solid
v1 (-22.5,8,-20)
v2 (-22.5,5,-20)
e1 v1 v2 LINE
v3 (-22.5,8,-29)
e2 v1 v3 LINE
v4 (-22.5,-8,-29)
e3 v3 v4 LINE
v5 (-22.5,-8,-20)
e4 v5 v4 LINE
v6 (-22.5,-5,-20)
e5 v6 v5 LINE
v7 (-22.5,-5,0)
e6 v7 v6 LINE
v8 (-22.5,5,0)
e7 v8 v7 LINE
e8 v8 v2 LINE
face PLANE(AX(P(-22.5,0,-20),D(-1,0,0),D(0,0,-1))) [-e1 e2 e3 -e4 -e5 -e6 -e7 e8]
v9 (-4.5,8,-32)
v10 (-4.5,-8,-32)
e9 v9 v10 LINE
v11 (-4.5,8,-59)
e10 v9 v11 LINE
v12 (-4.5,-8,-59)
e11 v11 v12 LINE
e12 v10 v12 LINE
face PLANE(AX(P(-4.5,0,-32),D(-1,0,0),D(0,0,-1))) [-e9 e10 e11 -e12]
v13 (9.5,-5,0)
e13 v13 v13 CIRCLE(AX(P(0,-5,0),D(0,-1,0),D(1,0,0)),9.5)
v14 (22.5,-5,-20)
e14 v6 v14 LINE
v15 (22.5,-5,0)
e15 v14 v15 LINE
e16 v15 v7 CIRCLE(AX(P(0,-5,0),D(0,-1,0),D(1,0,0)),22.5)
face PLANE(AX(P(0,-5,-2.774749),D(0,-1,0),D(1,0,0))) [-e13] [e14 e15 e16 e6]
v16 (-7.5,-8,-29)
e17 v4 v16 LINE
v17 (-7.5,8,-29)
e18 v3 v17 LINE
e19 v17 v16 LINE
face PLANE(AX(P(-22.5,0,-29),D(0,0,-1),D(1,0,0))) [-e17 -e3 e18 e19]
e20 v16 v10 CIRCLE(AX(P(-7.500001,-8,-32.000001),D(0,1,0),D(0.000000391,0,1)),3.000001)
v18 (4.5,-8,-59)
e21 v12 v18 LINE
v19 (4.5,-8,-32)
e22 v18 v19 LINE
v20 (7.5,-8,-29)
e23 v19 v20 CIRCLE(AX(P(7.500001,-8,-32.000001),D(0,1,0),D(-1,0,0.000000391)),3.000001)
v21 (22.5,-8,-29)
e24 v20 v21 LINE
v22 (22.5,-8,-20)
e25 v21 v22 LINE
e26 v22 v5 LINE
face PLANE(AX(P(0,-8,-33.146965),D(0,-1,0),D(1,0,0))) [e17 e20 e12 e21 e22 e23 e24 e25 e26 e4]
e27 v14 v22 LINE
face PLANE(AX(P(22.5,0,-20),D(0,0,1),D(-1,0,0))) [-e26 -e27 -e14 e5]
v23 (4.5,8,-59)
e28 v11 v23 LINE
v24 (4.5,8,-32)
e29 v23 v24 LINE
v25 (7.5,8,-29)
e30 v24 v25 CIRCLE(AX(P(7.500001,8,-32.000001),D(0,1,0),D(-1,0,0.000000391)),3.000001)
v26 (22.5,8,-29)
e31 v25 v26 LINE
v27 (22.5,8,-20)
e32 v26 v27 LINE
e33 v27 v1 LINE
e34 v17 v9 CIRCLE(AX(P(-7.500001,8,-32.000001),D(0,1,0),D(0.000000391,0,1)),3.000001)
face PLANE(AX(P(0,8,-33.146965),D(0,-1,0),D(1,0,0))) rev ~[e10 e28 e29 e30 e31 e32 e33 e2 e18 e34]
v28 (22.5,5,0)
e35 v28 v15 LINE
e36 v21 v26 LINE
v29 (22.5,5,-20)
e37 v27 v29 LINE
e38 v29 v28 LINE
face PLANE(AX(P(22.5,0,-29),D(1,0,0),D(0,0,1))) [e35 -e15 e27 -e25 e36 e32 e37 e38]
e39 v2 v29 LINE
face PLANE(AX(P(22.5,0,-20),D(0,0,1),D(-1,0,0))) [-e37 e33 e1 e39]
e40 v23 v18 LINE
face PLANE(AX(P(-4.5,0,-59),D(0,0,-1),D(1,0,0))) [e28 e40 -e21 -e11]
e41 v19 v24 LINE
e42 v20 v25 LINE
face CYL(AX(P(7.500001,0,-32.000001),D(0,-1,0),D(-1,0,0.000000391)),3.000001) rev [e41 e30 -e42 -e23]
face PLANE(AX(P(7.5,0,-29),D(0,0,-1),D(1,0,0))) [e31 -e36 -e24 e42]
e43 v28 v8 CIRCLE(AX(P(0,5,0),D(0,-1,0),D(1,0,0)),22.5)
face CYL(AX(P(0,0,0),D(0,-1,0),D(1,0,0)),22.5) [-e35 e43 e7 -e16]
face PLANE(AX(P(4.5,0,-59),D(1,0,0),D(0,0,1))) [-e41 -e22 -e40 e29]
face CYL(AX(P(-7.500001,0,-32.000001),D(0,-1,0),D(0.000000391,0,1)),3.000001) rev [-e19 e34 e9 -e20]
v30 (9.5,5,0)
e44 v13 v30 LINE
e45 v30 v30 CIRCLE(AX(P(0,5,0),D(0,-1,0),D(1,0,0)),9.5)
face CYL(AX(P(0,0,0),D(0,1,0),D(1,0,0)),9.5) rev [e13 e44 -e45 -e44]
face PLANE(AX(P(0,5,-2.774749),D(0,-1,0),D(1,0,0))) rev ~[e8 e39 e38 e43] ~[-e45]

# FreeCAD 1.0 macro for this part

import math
import FreeCAD as App
import Part
import Sketcher
from FreeCAD import Vector

doc = App.newDocument("Part")
body = doc.addObject("PartDesign::Body", "Body")

# Sketch on XZ plane
sketch1 = body.newObject("Sketcher::SketchObject", "Sketch")
sketch1.AttachmentSupport = (doc.getObject("XZ_Plane"), [""])
sketch1.MapMode = "FlatFace"
sketch1.addGeometry([
    Part.LineSegment(Vector(22.5, -29, 0), Vector(22.5, -20, 0)),  # 0
    Part.LineSegment(Vector(22.5, -20, 0), Vector(-22.5, -20, 0)),  # 1
    Part.LineSegment(Vector(-22.5, -20, 0), Vector(-22.5, -29, 0)),  # 2
    Part.LineSegment(Vector(-22.5, -29, 0), Vector(-7.5, -29, 0)),  # 3
    Part.ArcOfCircle(Part.Circle(Vector(-7.5, -32, 0), Vector(0, 0, 1), 3), math.radians(0), math.radians(90)),  # 4
    Part.LineSegment(Vector(-4.5, -32, 0), Vector(-4.5, -59, 0)),  # 5
    Part.LineSegment(Vector(-4.5, -59, 0), Vector(4.5, -59, 0)),  # 6
    Part.LineSegment(Vector(4.5, -59, 0), Vector(4.5, -32, 0)),  # 7
    Part.ArcOfCircle(Part.Circle(Vector(7.5, -32, 0), Vector(0, 0, 1), 3), math.radians(90), math.radians(180)),  # 8
    Part.LineSegment(Vector(7.5, -29, 0), Vector(22.5, -29, 0)),  # 9
], False)
sketch1.addConstraint([
    Sketcher.Constraint("Coincident", 0, 2, 1, 1),
    Sketcher.Constraint("Coincident", 1, 2, 2, 1),
    Sketcher.Constraint("Coincident", 2, 2, 3, 1),
    Sketcher.Constraint("Tangent", 3, 2, 4, 2),
    Sketcher.Constraint("Tangent", 4, 1, 5, 1),
    Sketcher.Constraint("Coincident", 5, 2, 6, 1),
    Sketcher.Constraint("Coincident", 6, 2, 7, 1),
    Sketcher.Constraint("Tangent", 7, 2, 8, 2),
    Sketcher.Constraint("Tangent", 8, 1, 9, 1),
    Sketcher.Constraint("Coincident", 9, 2, 0, 1),
    Sketcher.Constraint("Vertical", 0),
    Sketcher.Constraint("Horizontal", 1),
    Sketcher.Constraint("Vertical", 2),
    Sketcher.Constraint("Horizontal", 3),
    Sketcher.Constraint("Vertical", 5),
    Sketcher.Constraint("Horizontal", 6),
    Sketcher.Constraint("Vertical", 7),
    Sketcher.Constraint("Horizontal", 9),
    Sketcher.Constraint("Equal", 4, 8),
    Sketcher.Constraint("Symmetric", 4, 3, 8, 3, -2),
    Sketcher.Constraint("Equal", 3, 9),
    Sketcher.Constraint("Equal", 6, 0),
    Sketcher.Constraint("Radius", 4, 3.000001),
    Sketcher.Constraint("DistanceX", 1, 2, 1, 1, 45.0),
    Sketcher.Constraint("DistanceX", 3, 1, 3, 2, 15.0),
    Sketcher.Constraint("DistanceY", 5, 2, 5, 1, 27.0),
    Sketcher.Constraint("DistanceY", 4, 3, -1, 1, 32.000001),
])
pad1 = body.newObject("PartDesign::Pad", "Pad")
pad1.Profile = sketch1
pad1.Length = 16
pad1.Midplane = True

# Sketch on XZ plane
sketch2 = body.newObject("Sketcher::SketchObject", "Sketch001")
sketch2.AttachmentSupport = (doc.getObject("XZ_Plane"), [""])
sketch2.MapMode = "FlatFace"
sketch2.addGeometry([
    Part.LineSegment(Vector(22, -20, 0), Vector(22, 0, 0)),  # 0
    Part.ArcOfCircle(Part.Circle(Vector(0, 0, 0), Vector(0, 0, 1), 22), math.radians(0), math.radians(180)),  # 1
    Part.LineSegment(Vector(-22, 0, 0), Vector(-22, -20, 0)),  # 2
    Part.LineSegment(Vector(-22, -20, 0), Vector(22, -20, 0)),  # 3
    Part.Circle(Vector(0, 0, 0), Vector(0, 0, 1), 10),  # 4
], False)
sketch2.addConstraint([
    Sketcher.Constraint("Tangent", 0, 2, 1, 1),
    Sketcher.Constraint("Tangent", 1, 2, 2, 1),
    Sketcher.Constraint("Coincident", 2, 2, 3, 1),
    Sketcher.Constraint("Coincident", 3, 2, 0, 1),
    Sketcher.Constraint("Vertical", 0),
    Sketcher.Constraint("Vertical", 2),
    Sketcher.Constraint("Horizontal", 3),
    Sketcher.Constraint("Coincident", 1, 3, -1, 1),
    Sketcher.Constraint("Coincident", 4, 3, -1, 1),
    Sketcher.Constraint("Diameter", 4, 19.0),
    Sketcher.Constraint("Radius", 1, 22.5),
    Sketcher.Constraint("DistanceY", 0, 1, 0, 2, 20.0),
])
pad2 = body.newObject("PartDesign::Pad", "Pad001")
pad2.Profile = sketch2
pad2.Length = 10
pad2.Midplane = True

doc.recompute()
